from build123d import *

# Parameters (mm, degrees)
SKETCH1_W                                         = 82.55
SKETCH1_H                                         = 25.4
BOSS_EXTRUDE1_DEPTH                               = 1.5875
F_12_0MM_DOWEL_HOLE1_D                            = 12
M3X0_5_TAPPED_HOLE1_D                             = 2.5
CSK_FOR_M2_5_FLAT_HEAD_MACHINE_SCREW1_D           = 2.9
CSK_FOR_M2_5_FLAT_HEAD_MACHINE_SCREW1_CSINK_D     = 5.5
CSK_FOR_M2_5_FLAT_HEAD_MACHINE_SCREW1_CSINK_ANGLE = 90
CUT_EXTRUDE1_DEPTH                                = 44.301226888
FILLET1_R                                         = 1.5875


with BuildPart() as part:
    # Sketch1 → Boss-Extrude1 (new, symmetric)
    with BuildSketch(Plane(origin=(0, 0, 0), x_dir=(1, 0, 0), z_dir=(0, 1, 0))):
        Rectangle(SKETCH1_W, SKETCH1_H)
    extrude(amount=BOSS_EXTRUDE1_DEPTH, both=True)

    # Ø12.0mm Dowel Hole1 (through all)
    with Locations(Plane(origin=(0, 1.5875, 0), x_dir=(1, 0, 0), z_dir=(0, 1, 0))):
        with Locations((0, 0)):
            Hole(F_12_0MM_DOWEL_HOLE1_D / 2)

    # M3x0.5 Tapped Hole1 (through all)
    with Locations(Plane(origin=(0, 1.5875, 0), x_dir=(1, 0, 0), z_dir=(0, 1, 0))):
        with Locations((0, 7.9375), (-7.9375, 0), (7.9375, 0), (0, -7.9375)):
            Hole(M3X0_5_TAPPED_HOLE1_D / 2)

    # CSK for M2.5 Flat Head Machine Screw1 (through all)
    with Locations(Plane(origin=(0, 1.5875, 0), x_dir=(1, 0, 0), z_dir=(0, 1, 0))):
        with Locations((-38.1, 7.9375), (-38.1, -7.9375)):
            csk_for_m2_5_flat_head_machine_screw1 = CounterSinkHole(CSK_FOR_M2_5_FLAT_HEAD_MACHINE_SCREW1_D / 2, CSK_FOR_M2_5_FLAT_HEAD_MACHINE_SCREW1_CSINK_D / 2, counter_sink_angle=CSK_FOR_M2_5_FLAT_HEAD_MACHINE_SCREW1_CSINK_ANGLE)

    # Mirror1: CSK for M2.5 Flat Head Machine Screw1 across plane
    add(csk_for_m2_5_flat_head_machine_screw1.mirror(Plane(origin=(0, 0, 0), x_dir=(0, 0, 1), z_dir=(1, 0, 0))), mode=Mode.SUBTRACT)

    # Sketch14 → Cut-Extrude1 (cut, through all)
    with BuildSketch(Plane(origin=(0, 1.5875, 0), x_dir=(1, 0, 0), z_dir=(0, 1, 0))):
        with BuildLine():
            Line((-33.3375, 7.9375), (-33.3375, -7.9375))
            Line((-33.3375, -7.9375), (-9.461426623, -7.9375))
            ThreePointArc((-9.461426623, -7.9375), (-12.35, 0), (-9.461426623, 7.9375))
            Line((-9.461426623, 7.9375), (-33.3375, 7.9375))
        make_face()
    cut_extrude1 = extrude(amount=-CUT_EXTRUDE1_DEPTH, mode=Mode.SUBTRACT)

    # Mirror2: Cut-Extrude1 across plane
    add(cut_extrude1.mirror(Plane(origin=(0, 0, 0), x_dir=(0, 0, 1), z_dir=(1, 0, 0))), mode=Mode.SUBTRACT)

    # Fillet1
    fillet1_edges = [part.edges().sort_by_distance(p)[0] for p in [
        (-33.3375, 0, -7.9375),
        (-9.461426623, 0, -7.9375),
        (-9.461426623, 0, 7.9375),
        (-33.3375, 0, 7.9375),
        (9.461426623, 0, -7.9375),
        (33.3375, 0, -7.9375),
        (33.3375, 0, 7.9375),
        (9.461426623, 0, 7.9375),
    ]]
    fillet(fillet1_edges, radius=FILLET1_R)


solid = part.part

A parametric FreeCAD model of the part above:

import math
import FreeCAD as App
import Part
import Sketcher
from FreeCAD import Vector


def edges_at(feature, points):
    """Names of the edges that pass closest to the given points."""
    edges = feature.Shape.Edges
    near = lambda p: min(range(len(edges)), key=lambda i: edges[i].distToShape(Part.Vertex(*p))[0])
    return sorted({f"Edge{near(p) + 1}" for p in points})


def add_polygon(sketch, points):
    """Adds a closed chain of lines whose ends are joined by coincident constraints."""
    first, n = sketch.GeometryCount, len(points)
    for a, b in zip(points, points[1:] + points[:1]):
        sketch.addGeometry(Part.LineSegment(App.Vector(*a, 0), App.Vector(*b, 0)), False)
    for i in range(n):
        sketch.addConstraint(Sketcher.Constraint("Coincident", first + i, 2, first + (i + 1) % n, 1))

doc = App.newDocument("Part")
body = doc.addObject("PartDesign::Body", "Body")

# Sketch on XZ plane
sketch1 = body.newObject("Sketcher::SketchObject", "Sketch")
sketch1.AttachmentSupport = (doc.getObject("XZ_Plane"), [""])
sketch1.MapMode = "FlatFace"
add_polygon(sketch1, [(-41, -13), (-41, 13), (41, 13), (41, -13)])  # lines 0-3
sketch1.addConstraint([
    Sketcher.Constraint("Vertical", 0),
    Sketcher.Constraint("Horizontal", 1),
    Sketcher.Constraint("Vertical", 2),
    Sketcher.Constraint("Horizontal", 3),
    Sketcher.Constraint("Symmetric", 0, 2, 2, 2, -1, 1),
    Sketcher.Constraint("DistanceY", 0, 1, 0, 2, 25.4),
    Sketcher.Constraint("DistanceX", 1, 1, 1, 2, 82.55),
])
pad1 = body.newObject("PartDesign::Pad", "Pad")
pad1.Profile = sketch1
pad1.Length = 3.175
pad1.Midplane = True

# Sketch on XZ plane
sketch2 = body.newObject("Sketcher::SketchObject", "Sketch001")
sketch2.AttachmentSupport = (doc.getObject("XZ_Plane"), [""])
sketch2.MapMode = "FlatFace"
sketch2.AttachmentOffset = App.Placement(Vector(0, 0, -1.5875), App.Rotation())
sketch2.addGeometry(Part.Circle(Vector(0, 0, 0), Vector(0, 0, 1), 6), False)
sketch2.addConstraint([
    Sketcher.Constraint("Coincident", 0, 3, -1, 1),
    Sketcher.Constraint("Diameter", 0, 12.0),
])
doc.recompute()
hole = body.newObject("PartDesign::Hole", "Hole")
hole.Profile = sketch2
hole.ThreadType = "None"
hole.Diameter = 12
hole.DepthType = "ThroughAll"
hole.Reversed = True

# Sketch on XZ plane
sketch3 = body.newObject("Sketcher::SketchObject", "Sketch002")
sketch3.AttachmentSupport = (doc.getObject("XZ_Plane"), [""])
sketch3.MapMode = "FlatFace"
sketch3.AttachmentOffset = App.Placement(Vector(0, 0, -1.5875), App.Rotation())
sketch3.addGeometry([
    Part.Circle(Vector(0, -7.9, 0), Vector(0, 0, 1), 1.2),
    Part.Circle(Vector(-7.9, 0, 0), Vector(0, 0, 1), 1.2),
    Part.Circle(Vector(7.9, 0, 0), Vector(0, 0, 1), 1.2),
    Part.Circle(Vector(0, 7.9, 0), Vector(0, 0, 1), 1.2),
], False)
sketch3.addConstraint([
    Sketcher.Constraint("Equal", 0, 1),
    Sketcher.Constraint("Equal", 1, 2),
    Sketcher.Constraint("Equal", 2, 3),
    Sketcher.Constraint("Symmetric", 1, 3, 2, 3, -1, 1),
    Sketcher.Constraint("Symmetric", 0, 3, 3, 3, -1, 1),
    Sketcher.Constraint("PointOnObject", 0, 3, -2),
    Sketcher.Constraint("PointOnObject", 1, 3, -1),
    Sketcher.Constraint("Diameter", 0, 2.5),
    Sketcher.Constraint("DistanceX", 1, 3, 2, 3, 15.875),
    Sketcher.Constraint("DistanceY", 0, 3, 3, 3, 15.875),
])
doc.recompute()
hole2 = body.newObject("PartDesign::Hole", "Hole001")
hole2.Profile = sketch3
hole2.ThreadType = "None"
hole2.Diameter = 2.5
hole2.DepthType = "ThroughAll"
hole2.Reversed = True

# Sketch on XZ plane
sketch4 = body.newObject("Sketcher::SketchObject", "Sketch003")
sketch4.AttachmentSupport = (doc.getObject("XZ_Plane"), [""])
sketch4.MapMode = "FlatFace"
sketch4.AttachmentOffset = App.Placement(Vector(0, 0, -1.5875), App.Rotation())
sketch4.addGeometry([
    Part.Circle(Vector(-38.1, -7.9, 0), Vector(0, 0, 1), 1.4),
    Part.Circle(Vector(-38.1, 7.9, 0), Vector(0, 0, 1), 1.4),
], False)
sketch4.addConstraint([
    Sketcher.Constraint("Equal", 0, 1),
    Sketcher.Constraint("Symmetric", 0, 3, 1, 3, -1),
    Sketcher.Constraint("Diameter", 0, 2.9),
    Sketcher.Constraint("DistanceX", 0, 3, -1, 1, 38.1),
    Sketcher.Constraint("DistanceY", 0, 3, 1, 3, 15.875),
])
doc.recompute()
hole3 = body.newObject("PartDesign::Hole", "Hole002")
hole3.Profile = sketch4
hole3.ThreadType = "None"
hole3.Diameter = 2.9
hole3.DepthType = "ThroughAll"
hole3.HoleCutType = "Countersink"
hole3.HoleCutDiameter = 5.5
hole3.HoleCutCountersinkAngle = 90
hole3.Reversed = True
doc.recompute()

mirrored = body.newObject("PartDesign::Mirrored", "Mirrored")
mirrored.Originals = [hole3]
mirrored.MirrorPlane = (doc.getObject("YZ_Plane"), [""])
body.Tip = mirrored

# Sketch on XZ plane
sketch5 = body.newObject("Sketcher::SketchObject", "Sketch004")
sketch5.AttachmentSupport = (doc.getObject("XZ_Plane"), [""])
sketch5.MapMode = "FlatFace"
sketch5.AttachmentOffset = App.Placement(Vector(0, 0, -1.5875), App.Rotation())
sketch5.addGeometry([
    Part.LineSegment(Vector(-33, -8, 0), Vector(-33, 8, 0)),
    Part.LineSegment(Vector(-33, 8, 0), Vector(-9, 8, 0)),
    Part.ArcOfCircle(Part.Circle(Vector(0, 0, 0), Vector(0, 0, 1), 12), math.radians(140), math.radians(220)),
    Part.LineSegment(Vector(-9, -8, 0), Vector(-33, -8, 0)),
], False)
sketch5.addConstraint([
    Sketcher.Constraint("Coincident", 0, 2, 1, 1),
    Sketcher.Constraint("Coincident", 1, 2, 2, 1),
    Sketcher.Constraint("Coincident", 2, 2, 3, 1),
    Sketcher.Constraint("Coincident", 3, 2, 0, 1),
    Sketcher.Constraint("Vertical", 0),
    Sketcher.Constraint("Horizontal", 1),
    Sketcher.Constraint("Horizontal", 3),
    Sketcher.Constraint("Coincident", 2, 3, -1, 1),
    Sketcher.Constraint("Vertical", 1, 2, 2, 2),
    Sketcher.Constraint("Radius", 2, 12.35),
    Sketcher.Constraint("DistanceY", 0, 1, 0, 2, 15.875),
    Sketcher.Constraint("DistanceX", 0, 2, -1, 1, 33.3375),
])
pocket1 = body.newObject("PartDesign::Pocket", "Pocket")
pocket1.Profile = sketch5
pocket1.Type = "ThroughAll"
pocket1.Reversed = True
doc.recompute()

mirrored2 = body.newObject("PartDesign::Mirrored", "Mirrored001")
mirrored2.Originals = [pocket1]
mirrored2.MirrorPlane = (doc.getObject("YZ_Plane"), [""])
body.Tip = mirrored2
doc.recompute()

fillet = body.newObject("PartDesign::Fillet", "Fillet")
fillet.Base = (mirrored2, edges_at(mirrored2, [
    (-33.337, 0, -7.938),
    (-9.461, 0, -7.938),
    (-9.461, 0, 7.938),
    (-33.337, 0, 7.938),
    (9.461, 0, -7.938),
    (33.337, 0, -7.938),
    (33.337, 0, 7.938),
    (9.461, 0, 7.938),
]))
fillet.Radius = 1.5875

doc.recompute()
